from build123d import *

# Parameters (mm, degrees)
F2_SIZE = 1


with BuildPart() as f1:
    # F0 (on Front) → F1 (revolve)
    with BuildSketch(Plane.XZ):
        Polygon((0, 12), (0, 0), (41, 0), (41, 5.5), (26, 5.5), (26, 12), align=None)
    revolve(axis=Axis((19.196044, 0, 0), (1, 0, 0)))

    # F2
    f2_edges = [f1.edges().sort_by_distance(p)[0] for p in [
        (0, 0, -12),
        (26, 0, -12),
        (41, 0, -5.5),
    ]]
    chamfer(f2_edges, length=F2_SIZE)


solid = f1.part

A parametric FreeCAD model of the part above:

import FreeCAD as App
import Part
import Sketcher


def edges_at(feature, points):
    """Names of the edges that pass closest to the given points."""
    edges = feature.Shape.Edges
    near = lambda p: min(range(len(edges)), key=lambda i: edges[i].distToShape(Part.Vertex(*p))[0])
    return sorted({f"Edge{near(p) + 1}" for p in points})


def add_polygon(sketch, points):
    """Adds a closed chain of lines whose ends are joined by coincident constraints."""
    first, n = sketch.GeometryCount, len(points)
    for a, b in zip(points, points[1:] + points[:1]):
        sketch.addGeometry(Part.LineSegment(App.Vector(*a, 0), App.Vector(*b, 0)), False)
    for i in range(n):
        sketch.addConstraint(Sketcher.Constraint("Coincident", first + i, 2, first + (i + 1) % n, 1))

doc = App.newDocument("Part")
body = doc.addObject("PartDesign::Body", "Body")

sketch1 = body.newObject("Sketcher::SketchObject", "Sketch")
sketch1.AttachmentSupport = (doc.getObject("XZ_Plane"), [""])
sketch1.MapMode = "FlatFace"
add_polygon(sketch1, [(0, 12), (0, 0), (41, 0), (41, 6), (26, 6), (26, 12)])
sketch1.addConstraint(Sketcher.Constraint("Vertical", 0))
sketch1.addConstraint(Sketcher.Constraint("Horizontal", 1))
sketch1.addConstraint(Sketcher.Constraint("Vertical", 2))
sketch1.addConstraint(Sketcher.Constraint("Horizontal", 3))
sketch1.addConstraint(Sketcher.Constraint("Vertical", 4))
sketch1.addConstraint(Sketcher.Constraint("Horizontal", 5))
sketch1.addConstraint(Sketcher.Constraint("Coincident", 0, 2, -1, 1))
sketch1.addConstraint(Sketcher.Constraint("DistanceX", 1, 1, 1, 2, 41.0))
sketch1.addConstraint(Sketcher.Constraint("DistanceX", 3, 2, 3, 1, 15.0))
sketch1.addConstraint(Sketcher.Constraint("DistanceY", 0, 2, 0, 1, 12.0))
sketch1.addConstraint(Sketcher.Constraint("DistanceY", 2, 1, 2, 2, 5.5))
revolution = body.newObject("PartDesign::Revolution", "Revolution")
revolution.Profile = sketch1
revolution.ReferenceAxis = (sketch1, ["H_Axis"])
revolution.Angle = 360
doc.recompute()

chamfer = body.newObject("PartDesign::Chamfer", "Chamfer")
chamfer.Base = (revolution, edges_at(revolution, [(0, 0, -12), (26, 0, -12), (41, 0, -5.5)]))
chamfer.Size = 1

doc.recompute()
